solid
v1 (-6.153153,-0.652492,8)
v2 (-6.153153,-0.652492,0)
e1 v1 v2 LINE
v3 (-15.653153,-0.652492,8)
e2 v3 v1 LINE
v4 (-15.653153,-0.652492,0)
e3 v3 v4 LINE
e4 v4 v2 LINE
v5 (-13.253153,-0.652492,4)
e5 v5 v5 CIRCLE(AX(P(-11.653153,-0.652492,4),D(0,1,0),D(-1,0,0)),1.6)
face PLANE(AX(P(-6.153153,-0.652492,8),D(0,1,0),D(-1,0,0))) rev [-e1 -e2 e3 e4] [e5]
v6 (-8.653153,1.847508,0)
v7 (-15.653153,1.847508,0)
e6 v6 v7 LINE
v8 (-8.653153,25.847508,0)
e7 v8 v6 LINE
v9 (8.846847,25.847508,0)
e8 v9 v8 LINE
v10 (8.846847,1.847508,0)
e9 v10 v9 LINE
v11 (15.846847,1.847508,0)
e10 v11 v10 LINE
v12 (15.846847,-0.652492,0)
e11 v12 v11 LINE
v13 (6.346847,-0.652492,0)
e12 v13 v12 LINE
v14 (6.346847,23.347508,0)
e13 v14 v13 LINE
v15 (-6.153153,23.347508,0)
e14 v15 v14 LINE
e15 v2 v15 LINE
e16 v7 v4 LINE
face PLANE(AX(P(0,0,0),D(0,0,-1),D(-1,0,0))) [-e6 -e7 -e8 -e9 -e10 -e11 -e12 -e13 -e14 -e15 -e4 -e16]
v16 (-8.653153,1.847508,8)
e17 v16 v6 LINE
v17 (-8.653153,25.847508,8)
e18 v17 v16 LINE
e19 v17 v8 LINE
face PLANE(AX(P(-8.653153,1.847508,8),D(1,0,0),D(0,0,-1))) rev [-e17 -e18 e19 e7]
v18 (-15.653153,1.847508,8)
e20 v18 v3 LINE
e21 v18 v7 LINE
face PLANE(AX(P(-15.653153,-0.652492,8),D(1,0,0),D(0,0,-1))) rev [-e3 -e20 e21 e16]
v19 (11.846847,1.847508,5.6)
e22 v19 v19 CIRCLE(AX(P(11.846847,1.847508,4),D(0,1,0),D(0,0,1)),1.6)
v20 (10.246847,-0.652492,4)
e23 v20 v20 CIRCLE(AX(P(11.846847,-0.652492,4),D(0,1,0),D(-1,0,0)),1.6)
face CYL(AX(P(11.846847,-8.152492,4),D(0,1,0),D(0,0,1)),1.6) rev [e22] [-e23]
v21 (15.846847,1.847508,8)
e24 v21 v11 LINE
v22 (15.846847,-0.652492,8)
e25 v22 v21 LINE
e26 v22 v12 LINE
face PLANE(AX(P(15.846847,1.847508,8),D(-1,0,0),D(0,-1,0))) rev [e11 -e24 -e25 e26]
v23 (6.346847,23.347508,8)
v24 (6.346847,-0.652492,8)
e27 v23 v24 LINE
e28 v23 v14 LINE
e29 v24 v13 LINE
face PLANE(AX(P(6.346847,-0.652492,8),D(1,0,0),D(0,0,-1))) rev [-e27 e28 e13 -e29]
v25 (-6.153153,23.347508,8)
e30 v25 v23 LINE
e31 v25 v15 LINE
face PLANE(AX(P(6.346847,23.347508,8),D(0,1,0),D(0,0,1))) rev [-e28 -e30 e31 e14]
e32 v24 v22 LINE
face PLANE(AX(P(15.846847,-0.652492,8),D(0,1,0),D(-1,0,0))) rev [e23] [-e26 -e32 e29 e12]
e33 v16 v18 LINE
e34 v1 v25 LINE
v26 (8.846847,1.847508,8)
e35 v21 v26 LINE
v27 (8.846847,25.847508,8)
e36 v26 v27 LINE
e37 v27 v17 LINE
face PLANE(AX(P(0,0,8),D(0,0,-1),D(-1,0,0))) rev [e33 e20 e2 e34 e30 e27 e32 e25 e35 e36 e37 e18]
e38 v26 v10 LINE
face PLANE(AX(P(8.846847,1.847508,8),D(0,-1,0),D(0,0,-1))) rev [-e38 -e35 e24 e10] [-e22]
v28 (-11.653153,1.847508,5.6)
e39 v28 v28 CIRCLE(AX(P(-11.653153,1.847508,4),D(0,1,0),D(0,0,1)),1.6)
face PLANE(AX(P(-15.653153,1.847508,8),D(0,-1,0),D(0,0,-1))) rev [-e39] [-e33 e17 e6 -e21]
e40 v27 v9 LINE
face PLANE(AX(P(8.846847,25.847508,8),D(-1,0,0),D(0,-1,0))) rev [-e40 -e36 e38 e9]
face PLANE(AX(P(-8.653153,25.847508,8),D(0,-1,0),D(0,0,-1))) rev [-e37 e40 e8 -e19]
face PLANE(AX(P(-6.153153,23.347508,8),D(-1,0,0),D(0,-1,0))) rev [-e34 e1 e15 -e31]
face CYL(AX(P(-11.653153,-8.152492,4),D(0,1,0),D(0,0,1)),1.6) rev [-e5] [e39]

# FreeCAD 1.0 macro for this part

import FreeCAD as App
import Part
import Sketcher

V = App.Vector
Q = App.Units.Quantity

doc = App.newDocument("Part")
body = doc.addObject("PartDesign::Body", "Body")

sketch1 = body.newObject("Sketcher::SketchObject", "Sketch")
sketch1.AttachmentSupport = (doc.getObject("XY_Plane"), [""])
sketch1.MapMode = "FlatFace"
sketch1.addGeometry([
    Part.LineSegment(V(-15.653153, -0.652492, 0), V(-6.153153, -0.652492, 0)),
    Part.LineSegment(V(-6.153153, -0.652492, 0), V(-6.153153, 23.347508, 0)),
    Part.LineSegment(V(-6.153153, 23.347508, 0), V(6.346847, 23.347508, 0)),
    Part.LineSegment(V(6.346847, 23.347508, 0), V(6.346847, -0.652492, 0)),
    Part.LineSegment(V(6.346847, -0.652492, 0), V(15.846847, -0.652492, 0)),
    Part.LineSegment(V(15.846847, -0.652492, 0), V(15.846847, 1.847508, 0)),
    Part.LineSegment(V(15.846847, 1.847508, 0), V(8.846847, 1.847508, 0)),
    Part.LineSegment(V(8.846847, 1.847508, 0), V(8.846847, 25.847508, 0)),
    Part.LineSegment(V(8.846847, 25.847508, 0), V(-8.653153, 25.847508, 0)),
    Part.LineSegment(V(-8.653153, 25.847508, 0), V(-8.653153, 1.847508, 0)),
    Part.LineSegment(V(-8.653153, 1.847508, 0), V(-15.653153, 1.847508, 0)),
    Part.LineSegment(V(-15.653153, 1.847508, 0), V(-15.653153, -0.652492, 0)),
], False)
sketch1.addConstraint([
    Sketcher.Constraint("Coincident", 0, 2, 1, 1),
    Sketcher.Constraint("Coincident", 1, 2, 2, 1),
    Sketcher.Constraint("Coincident", 2, 2, 3, 1),
    Sketcher.Constraint("Coincident", 3, 2, 4, 1),
    Sketcher.Constraint("Coincident", 4, 2, 5, 1),
    Sketcher.Constraint("Coincident", 5, 2, 6, 1),
    Sketcher.Constraint("Coincident", 6, 2, 7, 1),
    Sketcher.Constraint("Coincident", 7, 2, 8, 1),
    Sketcher.Constraint("Coincident", 8, 2, 9, 1),
    Sketcher.Constraint("Coincident", 9, 2, 10, 1),
    Sketcher.Constraint("Coincident", 10, 2, 11, 1),
    Sketcher.Constraint("Coincident", 11, 2, 0, 1),
    Sketcher.Constraint("Horizontal", 0),
    Sketcher.Constraint("Vertical", 1),
    Sketcher.Constraint("Horizontal", 2),
    Sketcher.Constraint("Vertical", 3),
    Sketcher.Constraint("Horizontal", 4),
    Sketcher.Constraint("Vertical", 5),
    Sketcher.Constraint("Horizontal", 6),
    Sketcher.Constraint("Vertical", 7),
    Sketcher.Constraint("Horizontal", 8),
    Sketcher.Constraint("Vertical", 9),
    Sketcher.Constraint("Horizontal", 10),
    Sketcher.Constraint("Vertical", 11),
    Sketcher.Constraint("Horizontal", 0, 2, 3, 2),
    Sketcher.Constraint("Horizontal", 6, 2, 9, 2),
    Sketcher.Constraint("Equal", 0, 4),
    Sketcher.Constraint("Equal", 6, 10),
    Sketcher.Constraint("Equal", 3, 7),
    Sketcher.Constraint("DistanceX", 6, 2, 6, 1, Q("7 mm")),
    Sketcher.Constraint("DistanceY", 1, 1, 1, 2, Q("24 mm")),
    Sketcher.Constraint("DistanceX", 0, 1, 0, 2, Q("9.5 mm")),
    Sketcher.Constraint("DistanceX", 2, 1, 2, 2, Q("12.5 mm")),
    Sketcher.Constraint("DistanceY", 5, 1, 5, 2, Q("2.5 mm")),
    Sketcher.Constraint("DistanceY", 0, 2, -1, 1, Q("0.652492 mm")),
    Sketcher.Constraint("DistanceX", 0, 2, -1, 1, Q("6.153153 mm")),
])
pad1 = body.newObject("PartDesign::Pad", "Pad")
pad1.Profile = sketch1
pad1.Length = 8

sketch2 = body.newObject("Sketcher::SketchObject", "Sketch001")
sketch2.AttachmentSupport = (doc.getObject("XZ_Plane"), [""])
sketch2.MapMode = "FlatFace"
sketch2.AttachmentOffset = App.Placement(V(0, 0, -1.847508), App.Rotation())
sketch2.addGeometry([
    Part.Circle(V(-11.653153, 4, 0), V(0, 0, 1), 1.6),
    Part.Circle(V(11.846847, 4, 0), V(0, 0, 1), 1.6),
], False)
sketch2.addConstraint([
    Sketcher.Constraint("Equal", 0, 1),
    Sketcher.Constraint("Horizontal", 0, 3, 1, 3),
    Sketcher.Constraint("Diameter", 0, Q("3.2 mm")),
    Sketcher.Constraint("DistanceY", -1, 1, 0, 3, Q("4 mm")),
    Sketcher.Constraint("DistanceX", 0, 3, 1, 3, Q("23.5 mm")),
    Sketcher.Constraint("DistanceX", 0, 3, -1, 1, Q("11.653153 mm")),
])
pocket1 = body.newObject("PartDesign::Pocket", "Pocket")
pocket1.Profile = sketch2
pocket1.Length = 10
pocket1.Reversed = True

doc.recompute()
